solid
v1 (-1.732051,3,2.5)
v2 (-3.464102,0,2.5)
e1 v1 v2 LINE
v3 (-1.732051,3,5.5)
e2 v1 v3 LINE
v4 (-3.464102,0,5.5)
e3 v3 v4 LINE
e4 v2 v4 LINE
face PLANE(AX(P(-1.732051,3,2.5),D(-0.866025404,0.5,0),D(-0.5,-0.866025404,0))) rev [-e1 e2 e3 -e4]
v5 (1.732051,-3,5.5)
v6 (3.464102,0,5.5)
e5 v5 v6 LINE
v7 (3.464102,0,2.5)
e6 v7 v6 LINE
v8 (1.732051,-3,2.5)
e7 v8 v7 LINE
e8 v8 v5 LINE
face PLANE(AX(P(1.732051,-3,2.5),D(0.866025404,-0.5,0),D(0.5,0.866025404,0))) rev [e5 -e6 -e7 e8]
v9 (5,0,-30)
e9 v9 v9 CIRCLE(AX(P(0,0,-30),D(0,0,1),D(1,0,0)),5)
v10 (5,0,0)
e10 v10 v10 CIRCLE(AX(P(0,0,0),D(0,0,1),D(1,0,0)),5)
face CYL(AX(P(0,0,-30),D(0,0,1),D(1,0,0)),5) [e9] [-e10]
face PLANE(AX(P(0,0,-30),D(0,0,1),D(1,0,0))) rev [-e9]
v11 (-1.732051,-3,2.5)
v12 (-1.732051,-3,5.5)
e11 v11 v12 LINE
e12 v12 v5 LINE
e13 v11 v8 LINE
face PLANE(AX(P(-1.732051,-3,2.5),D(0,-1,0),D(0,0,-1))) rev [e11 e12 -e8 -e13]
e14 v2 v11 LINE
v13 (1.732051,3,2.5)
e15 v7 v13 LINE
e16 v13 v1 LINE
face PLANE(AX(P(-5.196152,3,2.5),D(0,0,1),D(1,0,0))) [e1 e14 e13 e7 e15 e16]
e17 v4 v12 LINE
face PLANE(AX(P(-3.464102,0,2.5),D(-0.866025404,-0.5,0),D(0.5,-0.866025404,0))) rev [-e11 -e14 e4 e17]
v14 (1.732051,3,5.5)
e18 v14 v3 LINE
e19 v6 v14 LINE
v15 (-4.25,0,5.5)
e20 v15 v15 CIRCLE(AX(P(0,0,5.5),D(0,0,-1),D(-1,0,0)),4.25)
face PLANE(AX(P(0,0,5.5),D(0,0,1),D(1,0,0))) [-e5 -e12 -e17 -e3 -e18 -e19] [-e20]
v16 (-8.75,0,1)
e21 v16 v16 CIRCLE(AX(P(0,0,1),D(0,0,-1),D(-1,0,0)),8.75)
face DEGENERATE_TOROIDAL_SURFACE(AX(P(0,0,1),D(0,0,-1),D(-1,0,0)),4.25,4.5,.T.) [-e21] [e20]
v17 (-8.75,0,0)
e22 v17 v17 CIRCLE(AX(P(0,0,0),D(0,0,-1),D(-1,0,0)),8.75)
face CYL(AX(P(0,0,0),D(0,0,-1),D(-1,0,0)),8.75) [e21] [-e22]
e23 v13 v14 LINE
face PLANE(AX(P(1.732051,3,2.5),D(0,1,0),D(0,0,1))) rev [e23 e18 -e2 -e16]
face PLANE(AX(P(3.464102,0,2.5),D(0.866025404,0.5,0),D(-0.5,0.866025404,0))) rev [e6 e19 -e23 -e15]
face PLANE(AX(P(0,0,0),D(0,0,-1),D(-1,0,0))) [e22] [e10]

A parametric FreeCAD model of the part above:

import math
import FreeCAD as App
import Part
import Sketcher
Q = App.Units.Quantity


def add_polygon(sketch, points):
    """Adds a closed chain of lines whose ends are joined by coincident constraints."""
    first, n = sketch.GeometryCount, len(points)
    for a, b in zip(points, points[1:] + points[:1]):
        sketch.addGeometry(Part.LineSegment(App.Vector(*a, 0), App.Vector(*b, 0)), False)
    for i in range(n):
        sketch.addConstraint(Sketcher.Constraint("Coincident", first + i, 2, first + (i + 1) % n, 1))

doc = App.newDocument("Part")
body = doc.addObject("PartDesign::Body", "Body")

# Sketch on XY plane
sketch1 = body.newObject("Sketcher::SketchObject", "Sketch")
sketch1.AttachmentSupport = (doc.getObject("XY_Plane"), [""])
sketch1.MapMode = "FlatFace"
sketch1.addGeometry(Part.Circle(App.Vector(0, 0, 0), App.Vector(0, 0, 1), 5), False)
sketch1.addConstraint(Sketcher.Constraint("Coincident", 0, 3, -1, 1))
sketch1.addConstraint(Sketcher.Constraint("Diameter", 0, Q("10 mm")))
pad1 = body.newObject("PartDesign::Pad", "Pad")
pad1.Profile = sketch1
pad1.Length = 30
pad1.Reversed = True

# Sketch on YZ plane
sketch2 = body.newObject("Sketcher::SketchObject", "Sketch001")
sketch2.AttachmentSupport = (doc.getObject("YZ_Plane"), [""])
sketch2.MapMode = "FlatFace"
sketch2.addGeometry(Part.LineSegment(App.Vector(0, 0, 0), App.Vector(8.8, 0, 0)), False)
sketch2.addGeometry(Part.LineSegment(App.Vector(8.8, 0, 0), App.Vector(8.8, 1, 0)), False)
sketch2.addGeometry(Part.ArcOfCircle(Part.Circle(App.Vector(4.2, 1, 0), App.Vector(0, 0, 1), 4.5), math.radians(0), math.radians(90)), False)
sketch2.addGeometry(Part.LineSegment(App.Vector(4.2, 5.5, 0), App.Vector(0, 5.5, 0)), False)
sketch2.addGeometry(Part.LineSegment(App.Vector(0, 5.5, 0), App.Vector(0, 0, 0)), False)
sketch2.addConstraint(Sketcher.Constraint("Coincident", 0, 2, 1, 1))
sketch2.addConstraint(Sketcher.Constraint("Tangent", 1, 2, 2, 1))
sketch2.addConstraint(Sketcher.Constraint("Tangent", 2, 2, 3, 1))
sketch2.addConstraint(Sketcher.Constraint("Coincident", 3, 2, 4, 1))
sketch2.addConstraint(Sketcher.Constraint("Coincident", 4, 2, 0, 1))
sketch2.addConstraint(Sketcher.Constraint("Horizontal", 0))
sketch2.addConstraint(Sketcher.Constraint("Vertical", 1))
sketch2.addConstraint(Sketcher.Constraint("Horizontal", 3))
sketch2.addConstraint(Sketcher.Constraint("Vertical", 4))
sketch2.addConstraint(Sketcher.Constraint("Coincident", 4, 2, -1, 1))
sketch2.addConstraint(Sketcher.Constraint("Radius", 2, Q("4.5 mm")))
sketch2.addConstraint(Sketcher.Constraint("DistanceY", 1, 1, 1, 2, Q("1 mm")))
sketch2.addConstraint(Sketcher.Constraint("DistanceX", 0, 1, 0, 2, Q("8.75 mm")))
revolution = body.newObject("PartDesign::Revolution", "Revolution")
revolution.Profile = sketch2
revolution.ReferenceAxis = (sketch2, ["V_Axis"])
revolution.Angle = 360

# Sketch on XY plane
sketch3 = body.newObject("Sketcher::SketchObject", "Sketch002")
sketch3.AttachmentSupport = (doc.getObject("XY_Plane"), [""])
sketch3.MapMode = "FlatFace"
sketch3.AttachmentOffset = App.Placement(App.Vector(0, 0, 5.5), App.Rotation())
add_polygon(sketch3, [(-1.7, 3), (-3.5, 0), (-1.7, -3), (1.7, -3), (3.5, 0), (1.7, 3)])  # lines 0-5
sketch3.addConstraint(Sketcher.Constraint("Horizontal", 2))
sketch3.addConstraint(Sketcher.Constraint("Horizontal", 5))
sketch3.addConstraint(Sketcher.Constraint("Symmetric", 0, 2, 3, 2, -1, 1))
sketch3.addConstraint(Sketcher.Constraint("Symmetric", 1, 2, 4, 2, -1, 1))
sketch3.addConstraint(Sketcher.Constraint("PointOnObject", 0, 2, -1))
sketch3.addConstraint(Sketcher.Constraint("Parallel", 0, 3))
sketch3.addConstraint(Sketcher.Constraint("Vertical", 2, 2, 4, 2))
sketch3.addConstraint(Sketcher.Constraint("Angle", 0, Q("-120 deg")))
sketch3.addConstraint(Sketcher.Constraint("DistanceY", 1, 2, -1, 1, Q("3 mm")))
sketch3.addConstraint(Sketcher.Constraint("DistanceX", 2, 1, 2, 2, Q("3.464102 mm")))
pocket1 = body.newObject("PartDesign::Pocket", "Pocket")
pocket1.Profile = sketch3
pocket1.Length = 3

doc.recompute()
